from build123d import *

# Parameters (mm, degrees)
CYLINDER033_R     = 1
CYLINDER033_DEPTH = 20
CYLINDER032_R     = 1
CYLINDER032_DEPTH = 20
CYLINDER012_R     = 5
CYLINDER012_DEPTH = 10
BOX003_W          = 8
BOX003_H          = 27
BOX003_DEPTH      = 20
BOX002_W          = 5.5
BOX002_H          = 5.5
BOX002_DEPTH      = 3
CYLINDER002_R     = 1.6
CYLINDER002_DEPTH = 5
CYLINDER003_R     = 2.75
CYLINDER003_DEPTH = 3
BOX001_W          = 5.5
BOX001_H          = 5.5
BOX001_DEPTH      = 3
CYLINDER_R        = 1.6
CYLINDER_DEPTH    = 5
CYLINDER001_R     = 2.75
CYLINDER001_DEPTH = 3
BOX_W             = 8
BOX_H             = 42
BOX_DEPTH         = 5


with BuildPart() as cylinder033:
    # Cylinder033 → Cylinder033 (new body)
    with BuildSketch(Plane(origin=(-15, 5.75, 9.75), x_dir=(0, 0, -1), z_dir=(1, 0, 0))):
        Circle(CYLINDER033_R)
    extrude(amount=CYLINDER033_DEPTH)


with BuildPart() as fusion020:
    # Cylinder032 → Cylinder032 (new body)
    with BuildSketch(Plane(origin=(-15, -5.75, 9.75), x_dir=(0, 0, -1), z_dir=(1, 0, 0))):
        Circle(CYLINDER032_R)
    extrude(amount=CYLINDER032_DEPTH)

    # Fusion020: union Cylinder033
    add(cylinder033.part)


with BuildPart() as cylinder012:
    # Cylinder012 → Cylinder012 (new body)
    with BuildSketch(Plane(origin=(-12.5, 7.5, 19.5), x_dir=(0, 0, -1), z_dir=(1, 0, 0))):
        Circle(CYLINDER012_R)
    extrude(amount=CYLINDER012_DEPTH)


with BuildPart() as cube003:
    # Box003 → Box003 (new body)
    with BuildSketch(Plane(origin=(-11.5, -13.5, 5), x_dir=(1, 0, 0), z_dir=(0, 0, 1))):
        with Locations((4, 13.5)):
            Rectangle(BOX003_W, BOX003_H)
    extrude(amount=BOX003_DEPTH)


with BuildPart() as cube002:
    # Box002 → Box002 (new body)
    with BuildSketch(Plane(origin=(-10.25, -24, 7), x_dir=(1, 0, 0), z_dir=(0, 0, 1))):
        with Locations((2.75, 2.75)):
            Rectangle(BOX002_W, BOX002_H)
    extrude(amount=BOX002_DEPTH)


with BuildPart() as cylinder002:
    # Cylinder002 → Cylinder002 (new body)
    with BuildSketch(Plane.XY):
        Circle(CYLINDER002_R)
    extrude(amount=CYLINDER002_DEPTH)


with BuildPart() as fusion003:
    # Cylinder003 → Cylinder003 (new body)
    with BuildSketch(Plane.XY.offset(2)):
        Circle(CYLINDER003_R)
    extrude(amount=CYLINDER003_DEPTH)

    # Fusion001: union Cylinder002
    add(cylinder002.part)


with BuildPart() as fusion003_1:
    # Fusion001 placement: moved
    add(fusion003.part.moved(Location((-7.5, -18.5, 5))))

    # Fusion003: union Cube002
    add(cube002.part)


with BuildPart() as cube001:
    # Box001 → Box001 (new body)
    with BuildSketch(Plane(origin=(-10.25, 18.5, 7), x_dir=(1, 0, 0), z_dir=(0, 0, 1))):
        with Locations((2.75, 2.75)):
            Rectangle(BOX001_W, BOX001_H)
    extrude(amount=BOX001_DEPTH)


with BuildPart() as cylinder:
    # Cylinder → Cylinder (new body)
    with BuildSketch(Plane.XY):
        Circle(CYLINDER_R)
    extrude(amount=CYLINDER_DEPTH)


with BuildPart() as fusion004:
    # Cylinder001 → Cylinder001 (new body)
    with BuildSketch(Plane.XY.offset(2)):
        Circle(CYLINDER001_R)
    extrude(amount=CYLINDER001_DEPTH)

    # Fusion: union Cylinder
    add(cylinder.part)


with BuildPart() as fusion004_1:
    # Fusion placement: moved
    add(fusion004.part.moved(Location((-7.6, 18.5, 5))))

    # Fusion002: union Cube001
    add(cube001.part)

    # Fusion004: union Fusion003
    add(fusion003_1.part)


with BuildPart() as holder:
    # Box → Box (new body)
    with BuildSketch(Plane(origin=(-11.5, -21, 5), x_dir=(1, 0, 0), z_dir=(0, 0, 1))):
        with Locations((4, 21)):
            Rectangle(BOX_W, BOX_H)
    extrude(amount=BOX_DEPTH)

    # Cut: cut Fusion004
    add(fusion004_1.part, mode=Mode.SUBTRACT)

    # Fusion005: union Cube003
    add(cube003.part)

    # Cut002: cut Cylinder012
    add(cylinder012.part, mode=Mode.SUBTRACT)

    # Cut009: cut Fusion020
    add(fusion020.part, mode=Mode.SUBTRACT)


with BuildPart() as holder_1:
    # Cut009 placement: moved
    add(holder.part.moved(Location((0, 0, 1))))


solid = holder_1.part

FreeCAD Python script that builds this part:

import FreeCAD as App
import Part
import Sketcher
from FreeCAD import Vector
Q = App.Units.Quantity


def add_polygon(sketch, points):
    """Adds a closed chain of lines whose ends are joined by coincident constraints."""
    first, n = sketch.GeometryCount, len(points)
    for a, b in zip(points, points[1:] + points[:1]):
        sketch.addGeometry(Part.LineSegment(App.Vector(*a, 0), App.Vector(*b, 0)), False)
    for i in range(n):
        sketch.addConstraint(Sketcher.Constraint("Coincident", first + i, 2, first + (i + 1) % n, 1))

doc = App.newDocument("Part")
body = doc.addObject("PartDesign::Body", "Body")

# Sketch on YZ plane
sketch1 = doc.addObject("Sketcher::SketchObject", "Sketch")
body.addObject(sketch1)
sketch1.AttachmentSupport = (doc.YZ_Plane, [""])
sketch1.MapMode = "FlatFace"
sketch1.AttachmentOffset = App.Placement(Vector(0, 0, -15), App.Rotation())
sketch1.addGeometry(Part.Circle(Vector(5.8, 9.8, 0), Vector(0, 0, 1), 1), False)
sketch1.addConstraint(Sketcher.Constraint("Diameter", 0, Q("2 mm")))
sketch1.addConstraint(Sketcher.Constraint("DistanceX", -1, 1, 0, 3, Q("5.75 mm")))
sketch1.addConstraint(Sketcher.Constraint("DistanceY", -1, 1, 0, 3, Q("9.75 mm")))
pad1 = doc.addObject("PartDesign::Pad", "Pad")
body.addObject(pad1)
pad1.Profile = sketch1
pad1.Length = 20
body2 = doc.addObject("PartDesign::Body", "Body001")
body2.AllowCompound = True

# Sketch on YZ plane
sketch2 = doc.addObject("Sketcher::SketchObject", "Sketch001")
body2.addObject(sketch2)
sketch2.AttachmentSupport = (doc.getObject("YZ_Plane001"), [""])
sketch2.MapMode = "FlatFace"
sketch2.AttachmentOffset = App.Placement(Vector(0, 0, -15), App.Rotation())
sketch2.addGeometry(Part.Circle(Vector(-5.8, 9.8, 0), Vector(0, 0, 1), 1), False)
sketch2.addConstraint(Sketcher.Constraint("Diameter", 0, Q("2 mm")))
sketch2.addConstraint(Sketcher.Constraint("DistanceX", 0, 3, -1, 1, Q("5.75 mm")))
sketch2.addConstraint(Sketcher.Constraint("DistanceY", -1, 1, 0, 3, Q("9.75 mm")))
pad2 = doc.addObject("PartDesign::Pad", "Pad001")
body2.addObject(pad2)
pad2.Profile = sketch2
pad2.Length = 20
doc.recompute()

boolean = doc.addObject("PartDesign::Boolean", "Boolean")
body2.addObject(boolean)
boolean.Type = "Fuse"
boolean.addObjects([body])
body3 = doc.addObject("PartDesign::Body", "Body002")

# Sketch on YZ plane
sketch3 = doc.addObject("Sketcher::SketchObject", "Sketch002")
body3.addObject(sketch3)
sketch3.AttachmentSupport = (doc.getObject("YZ_Plane002"), [""])
sketch3.MapMode = "FlatFace"
sketch3.AttachmentOffset = App.Placement(Vector(0, 0, -12.5), App.Rotation())
sketch3.addGeometry(Part.Circle(Vector(8, 20, 0), Vector(0, 0, 1), 5), False)
sketch3.addConstraint(Sketcher.Constraint("Diameter", 0, Q("10 mm")))
sketch3.addConstraint(Sketcher.Constraint("DistanceX", -1, 1, 0, 3, Q("7.5 mm")))
sketch3.addConstraint(Sketcher.Constraint("DistanceY", -1, 1, 0, 3, Q("19.5 mm")))
pad3 = doc.addObject("PartDesign::Pad", "Pad002")
body3.addObject(pad3)
pad3.Profile = sketch3
pad3.Length = 10
body4 = doc.addObject("PartDesign::Body", "Body003")

# Sketch on XY plane
sketch4 = doc.addObject("Sketcher::SketchObject", "Sketch003")
body4.addObject(sketch4)
sketch4.AttachmentSupport = (doc.getObject("XY_Plane003"), [""])
sketch4.MapMode = "FlatFace"
sketch4.AttachmentOffset = App.Placement(Vector(0, 0, 5), App.Rotation())
add_polygon(sketch4, [(-12, 14), (-12, -14), (-4, -14), (-4, 14)])  # lines 0-3
sketch4.addConstraint(Sketcher.Constraint("Vertical", 0))
sketch4.addConstraint(Sketcher.Constraint("Horizontal", 1))
sketch4.addConstraint(Sketcher.Constraint("Vertical", 2))
sketch4.addConstraint(Sketcher.Constraint("Horizontal", 3))
sketch4.addConstraint(Sketcher.Constraint("DistanceX", 1, 1, 1, 2, Q("8 mm")))
sketch4.addConstraint(Sketcher.Constraint("DistanceY", 0, 2, 0, 1, Q("27 mm")))
sketch4.addConstraint(Sketcher.Constraint("DistanceX", 0, 2, -1, 1, Q("11.5 mm")))
sketch4.addConstraint(Sketcher.Constraint("DistanceY", 0, 2, -1, 1, Q("13.5 mm")))
pad4 = doc.addObject("PartDesign::Pad", "Pad003")
body4.addObject(pad4)
pad4.Profile = sketch4
pad4.Length = 20
body5 = doc.addObject("PartDesign::Body", "Body004")

# Sketch on XY plane
sketch5 = doc.addObject("Sketcher::SketchObject", "Sketch004")
body5.addObject(sketch5)
sketch5.AttachmentSupport = (doc.getObject("XY_Plane004"), [""])
sketch5.MapMode = "FlatFace"
sketch5.AttachmentOffset = App.Placement(Vector(0, 0, 7), App.Rotation())
add_polygon(sketch5, [(-10, -18), (-10, -24), (-5, -24), (-5, -18)])  # lines 0-3
sketch5.addConstraint(Sketcher.Constraint("Vertical", 0))
sketch5.addConstraint(Sketcher.Constraint("Horizontal", 1))
sketch5.addConstraint(Sketcher.Constraint("Vertical", 2))
sketch5.addConstraint(Sketcher.Constraint("Horizontal", 3))
sketch5.addConstraint(Sketcher.Constraint("Equal", 3, 0))
sketch5.addConstraint(Sketcher.Constraint("DistanceX", 1, 1, 1, 2, Q("5.5 mm")))
sketch5.addConstraint(Sketcher.Constraint("DistanceY", 0, 2, -1, 1, Q("24 mm")))
sketch5.addConstraint(Sketcher.Constraint("DistanceX", 0, 2, -1, 1, Q("10.25 mm")))
pad5 = doc.addObject("PartDesign::Pad", "Pad004")
body5.addObject(pad5)
pad5.Profile = sketch5
pad5.Length = 3
body6 = doc.addObject("PartDesign::Body", "Body005")

# Sketch on XY plane
sketch6 = doc.addObject("Sketcher::SketchObject", "Sketch005")
body6.addObject(sketch6)
sketch6.AttachmentSupport = (doc.getObject("XY_Plane005"), [""])
sketch6.MapMode = "FlatFace"
sketch6.addGeometry(Part.Circle(Vector(0, 0, 0), Vector(0, 0, 1), 1.6), False)
sketch6.addConstraint(Sketcher.Constraint("Coincident", 0, 3, -1, 1))
sketch6.addConstraint(Sketcher.Constraint("Diameter", 0, Q("3.2 mm")))
pad6 = doc.addObject("PartDesign::Pad", "Pad005")
body6.addObject(pad6)
pad6.Profile = sketch6
pad6.Length = 5
body7 = doc.addObject("PartDesign::Body", "Body006")

# Sketch on XY plane
sketch7 = doc.addObject("Sketcher::SketchObject", "Sketch006")
body7.addObject(sketch7)
sketch7.AttachmentSupport = (doc.getObject("XY_Plane006"), [""])
sketch7.MapMode = "FlatFace"
sketch7.AttachmentOffset = App.Placement(Vector(0, 0, 2), App.Rotation())
sketch7.addGeometry(Part.Circle(Vector(0, 0, 0), Vector(0, 0, 1), 2.8), False)
sketch7.addConstraint(Sketcher.Constraint("Coincident", 0, 3, -1, 1))
sketch7.addConstraint(Sketcher.Constraint("Diameter", 0, Q("5.5 mm")))
pad7 = doc.addObject("PartDesign::Pad", "Pad006")
body7.addObject(pad7)
pad7.Profile = sketch7
pad7.Length = 3
doc.recompute()

boolean2 = doc.addObject("PartDesign::Boolean", "Boolean001")
body7.addObject(boolean2)
boolean2.Type = "Fuse"
boolean2.addObjects([body6])
body8 = doc.addObject("PartDesign::Body", "Body007")
doc.recompute()

body7.Placement = App.Placement(Vector(-7.5, -18.5, 5), App.Rotation(Vector(0, 0, 1), 0))
boolean3 = doc.addObject("PartDesign::Boolean", "Boolean002")
body8.addObject(boolean3)
boolean3.Type = "Fuse"
boolean3.addObjects([body7])
doc.recompute()

boolean4 = doc.addObject("PartDesign::Boolean", "Boolean003")
body8.addObject(boolean4)
boolean4.Type = "Fuse"
boolean4.addObjects([body5])
body9 = doc.addObject("PartDesign::Body", "Body008")

# Sketch on XY plane
sketch8 = doc.addObject("Sketcher::SketchObject", "Sketch007")
body9.addObject(sketch8)
sketch8.AttachmentSupport = (doc.getObject("XY_Plane008"), [""])
sketch8.MapMode = "FlatFace"
sketch8.AttachmentOffset = App.Placement(Vector(0, 0, 7), App.Rotation())
add_polygon(sketch8, [(-10, 24), (-10, 18), (-5, 18), (-5, 24)])  # lines 0-3
sketch8.addConstraint(Sketcher.Constraint("Vertical", 0))
sketch8.addConstraint(Sketcher.Constraint("Horizontal", 1))
sketch8.addConstraint(Sketcher.Constraint("Vertical", 2))
sketch8.addConstraint(Sketcher.Constraint("Horizontal", 3))
sketch8.addConstraint(Sketcher.Constraint("Equal", 3, 0))
sketch8.addConstraint(Sketcher.Constraint("DistanceX", 1, 1, 1, 2, Q("5.5 mm")))
sketch8.addConstraint(Sketcher.Constraint("DistanceY", -1, 1, 2, 2, Q("24 mm")))
sketch8.addConstraint(Sketcher.Constraint("DistanceX", 0, 2, -1, 1, Q("10.25 mm")))
pad8 = doc.addObject("PartDesign::Pad", "Pad007")
body9.addObject(pad8)
pad8.Profile = sketch8
pad8.Length = 3
body10 = doc.addObject("PartDesign::Body", "Body009")

# Sketch on XY plane
sketch9 = doc.addObject("Sketcher::SketchObject", "Sketch008")
body10.addObject(sketch9)
sketch9.AttachmentSupport = (doc.getObject("XY_Plane009"), [""])
sketch9.MapMode = "FlatFace"
sketch9.addGeometry(Part.Circle(Vector(0, 0, 0), Vector(0, 0, 1), 1.6), False)
sketch9.addConstraint(Sketcher.Constraint("Coincident", 0, 3, -1, 1))
sketch9.addConstraint(Sketcher.Constraint("Diameter", 0, Q("3.2 mm")))
pad9 = doc.addObject("PartDesign::Pad", "Pad008")
body10.addObject(pad9)
pad9.Profile = sketch9
pad9.Length = 5
body11 = doc.addObject("PartDesign::Body", "Body010")

# Sketch on XY plane
sketch10 = doc.addObject("Sketcher::SketchObject", "Sketch009")
body11.addObject(sketch10)
sketch10.AttachmentSupport = (doc.getObject("XY_Plane010"), [""])
sketch10.MapMode = "FlatFace"
sketch10.AttachmentOffset = App.Placement(Vector(0, 0, 2), App.Rotation())
sketch10.addGeometry(Part.Circle(Vector(0, 0, 0), Vector(0, 0, 1), 2.8), False)
sketch10.addConstraint(Sketcher.Constraint("Coincident", 0, 3, -1, 1))
sketch10.addConstraint(Sketcher.Constraint("Diameter", 0, Q("5.5 mm")))
pad10 = doc.addObject("PartDesign::Pad", "Pad009")
body11.addObject(pad10)
pad10.Profile = sketch10
pad10.Length = 3
doc.recompute()

boolean5 = doc.addObject("PartDesign::Boolean", "Boolean004")
body11.addObject(boolean5)
boolean5.Type = "Fuse"
boolean5.addObjects([body10])
body12 = doc.addObject("PartDesign::Body", "Body011")
body12.AllowCompound = True
doc.recompute()

body11.Placement = App.Placement(Vector(-7.6, 18.5, 5), App.Rotation(Vector(0, 0, 1), 0))
boolean6 = doc.addObject("PartDesign::Boolean", "Boolean005")
body12.addObject(boolean6)
boolean6.Type = "Fuse"
boolean6.addObjects([body11])
doc.recompute()

boolean7 = doc.addObject("PartDesign::Boolean", "Boolean006")
body12.addObject(boolean7)
boolean7.Type = "Fuse"
boolean7.addObjects([body9])
doc.recompute()

boolean8 = doc.addObject("PartDesign::Boolean", "Boolean007")
body12.addObject(boolean8)
boolean8.Type = "Fuse"
boolean8.addObjects([body8])
body13 = doc.addObject("PartDesign::Body", "Body012")

# Sketch on XY plane
sketch11 = doc.addObject("Sketcher::SketchObject", "Sketch010")
body13.addObject(sketch11)
sketch11.AttachmentSupport = (doc.getObject("XY_Plane012"), [""])
sketch11.MapMode = "FlatFace"
sketch11.AttachmentOffset = App.Placement(Vector(0, 0, 5), App.Rotation())
add_polygon(sketch11, [(-12, 21), (-12, -21), (-4, -21), (-4, 21)])  # lines 0-3
sketch11.addConstraint(Sketcher.Constraint("Vertical", 0))
sketch11.addConstraint(Sketcher.Constraint("Horizontal", 1))
sketch11.addConstraint(Sketcher.Constraint("Vertical", 2))
sketch11.addConstraint(Sketcher.Constraint("Horizontal", 3))
sketch11.addConstraint(Sketcher.Constraint("DistanceX", 1, 1, 1, 2, Q("8 mm")))
sketch11.addConstraint(Sketcher.Constraint("DistanceY", 0, 2, 0, 1, Q("42 mm")))
sketch11.addConstraint(Sketcher.Constraint("DistanceY", 0, 2, -1, 1, Q("21 mm")))
sketch11.addConstraint(Sketcher.Constraint("DistanceX", 0, 2, -1, 1, Q("11.5 mm")))
pad11 = doc.addObject("PartDesign::Pad", "Pad010")
body13.addObject(pad11)
pad11.Profile = sketch11
pad11.Length = 5
doc.recompute()

boolean9 = doc.addObject("PartDesign::Boolean", "Boolean008")
body13.addObject(boolean9)
boolean9.Type = "Cut"
boolean9.addObjects([body12])
doc.recompute()

boolean10 = doc.addObject("PartDesign::Boolean", "Boolean009")
body13.addObject(boolean10)
boolean10.Type = "Fuse"
boolean10.addObjects([body4])
doc.recompute()

boolean11 = doc.addObject("PartDesign::Boolean", "Boolean010")
body13.addObject(boolean11)
boolean11.Type = "Cut"
boolean11.addObjects([body3])
doc.recompute()

boolean12 = doc.addObject("PartDesign::Boolean", "Boolean011")
body13.addObject(boolean12)
boolean12.Type = "Cut"
boolean12.addObjects([body2])
body14 = doc.addObject("PartDesign::Body", "Body013")
doc.recompute()

body13.Placement = App.Placement(Vector(0, 0, 1), App.Rotation(Vector(0, 0, 1), 0))
boolean13 = doc.addObject("PartDesign::Boolean", "Boolean012")
body14.addObject(boolean13)
boolean13.Type = "Fuse"
boolean13.addObjects([body13])

doc.recompute()
